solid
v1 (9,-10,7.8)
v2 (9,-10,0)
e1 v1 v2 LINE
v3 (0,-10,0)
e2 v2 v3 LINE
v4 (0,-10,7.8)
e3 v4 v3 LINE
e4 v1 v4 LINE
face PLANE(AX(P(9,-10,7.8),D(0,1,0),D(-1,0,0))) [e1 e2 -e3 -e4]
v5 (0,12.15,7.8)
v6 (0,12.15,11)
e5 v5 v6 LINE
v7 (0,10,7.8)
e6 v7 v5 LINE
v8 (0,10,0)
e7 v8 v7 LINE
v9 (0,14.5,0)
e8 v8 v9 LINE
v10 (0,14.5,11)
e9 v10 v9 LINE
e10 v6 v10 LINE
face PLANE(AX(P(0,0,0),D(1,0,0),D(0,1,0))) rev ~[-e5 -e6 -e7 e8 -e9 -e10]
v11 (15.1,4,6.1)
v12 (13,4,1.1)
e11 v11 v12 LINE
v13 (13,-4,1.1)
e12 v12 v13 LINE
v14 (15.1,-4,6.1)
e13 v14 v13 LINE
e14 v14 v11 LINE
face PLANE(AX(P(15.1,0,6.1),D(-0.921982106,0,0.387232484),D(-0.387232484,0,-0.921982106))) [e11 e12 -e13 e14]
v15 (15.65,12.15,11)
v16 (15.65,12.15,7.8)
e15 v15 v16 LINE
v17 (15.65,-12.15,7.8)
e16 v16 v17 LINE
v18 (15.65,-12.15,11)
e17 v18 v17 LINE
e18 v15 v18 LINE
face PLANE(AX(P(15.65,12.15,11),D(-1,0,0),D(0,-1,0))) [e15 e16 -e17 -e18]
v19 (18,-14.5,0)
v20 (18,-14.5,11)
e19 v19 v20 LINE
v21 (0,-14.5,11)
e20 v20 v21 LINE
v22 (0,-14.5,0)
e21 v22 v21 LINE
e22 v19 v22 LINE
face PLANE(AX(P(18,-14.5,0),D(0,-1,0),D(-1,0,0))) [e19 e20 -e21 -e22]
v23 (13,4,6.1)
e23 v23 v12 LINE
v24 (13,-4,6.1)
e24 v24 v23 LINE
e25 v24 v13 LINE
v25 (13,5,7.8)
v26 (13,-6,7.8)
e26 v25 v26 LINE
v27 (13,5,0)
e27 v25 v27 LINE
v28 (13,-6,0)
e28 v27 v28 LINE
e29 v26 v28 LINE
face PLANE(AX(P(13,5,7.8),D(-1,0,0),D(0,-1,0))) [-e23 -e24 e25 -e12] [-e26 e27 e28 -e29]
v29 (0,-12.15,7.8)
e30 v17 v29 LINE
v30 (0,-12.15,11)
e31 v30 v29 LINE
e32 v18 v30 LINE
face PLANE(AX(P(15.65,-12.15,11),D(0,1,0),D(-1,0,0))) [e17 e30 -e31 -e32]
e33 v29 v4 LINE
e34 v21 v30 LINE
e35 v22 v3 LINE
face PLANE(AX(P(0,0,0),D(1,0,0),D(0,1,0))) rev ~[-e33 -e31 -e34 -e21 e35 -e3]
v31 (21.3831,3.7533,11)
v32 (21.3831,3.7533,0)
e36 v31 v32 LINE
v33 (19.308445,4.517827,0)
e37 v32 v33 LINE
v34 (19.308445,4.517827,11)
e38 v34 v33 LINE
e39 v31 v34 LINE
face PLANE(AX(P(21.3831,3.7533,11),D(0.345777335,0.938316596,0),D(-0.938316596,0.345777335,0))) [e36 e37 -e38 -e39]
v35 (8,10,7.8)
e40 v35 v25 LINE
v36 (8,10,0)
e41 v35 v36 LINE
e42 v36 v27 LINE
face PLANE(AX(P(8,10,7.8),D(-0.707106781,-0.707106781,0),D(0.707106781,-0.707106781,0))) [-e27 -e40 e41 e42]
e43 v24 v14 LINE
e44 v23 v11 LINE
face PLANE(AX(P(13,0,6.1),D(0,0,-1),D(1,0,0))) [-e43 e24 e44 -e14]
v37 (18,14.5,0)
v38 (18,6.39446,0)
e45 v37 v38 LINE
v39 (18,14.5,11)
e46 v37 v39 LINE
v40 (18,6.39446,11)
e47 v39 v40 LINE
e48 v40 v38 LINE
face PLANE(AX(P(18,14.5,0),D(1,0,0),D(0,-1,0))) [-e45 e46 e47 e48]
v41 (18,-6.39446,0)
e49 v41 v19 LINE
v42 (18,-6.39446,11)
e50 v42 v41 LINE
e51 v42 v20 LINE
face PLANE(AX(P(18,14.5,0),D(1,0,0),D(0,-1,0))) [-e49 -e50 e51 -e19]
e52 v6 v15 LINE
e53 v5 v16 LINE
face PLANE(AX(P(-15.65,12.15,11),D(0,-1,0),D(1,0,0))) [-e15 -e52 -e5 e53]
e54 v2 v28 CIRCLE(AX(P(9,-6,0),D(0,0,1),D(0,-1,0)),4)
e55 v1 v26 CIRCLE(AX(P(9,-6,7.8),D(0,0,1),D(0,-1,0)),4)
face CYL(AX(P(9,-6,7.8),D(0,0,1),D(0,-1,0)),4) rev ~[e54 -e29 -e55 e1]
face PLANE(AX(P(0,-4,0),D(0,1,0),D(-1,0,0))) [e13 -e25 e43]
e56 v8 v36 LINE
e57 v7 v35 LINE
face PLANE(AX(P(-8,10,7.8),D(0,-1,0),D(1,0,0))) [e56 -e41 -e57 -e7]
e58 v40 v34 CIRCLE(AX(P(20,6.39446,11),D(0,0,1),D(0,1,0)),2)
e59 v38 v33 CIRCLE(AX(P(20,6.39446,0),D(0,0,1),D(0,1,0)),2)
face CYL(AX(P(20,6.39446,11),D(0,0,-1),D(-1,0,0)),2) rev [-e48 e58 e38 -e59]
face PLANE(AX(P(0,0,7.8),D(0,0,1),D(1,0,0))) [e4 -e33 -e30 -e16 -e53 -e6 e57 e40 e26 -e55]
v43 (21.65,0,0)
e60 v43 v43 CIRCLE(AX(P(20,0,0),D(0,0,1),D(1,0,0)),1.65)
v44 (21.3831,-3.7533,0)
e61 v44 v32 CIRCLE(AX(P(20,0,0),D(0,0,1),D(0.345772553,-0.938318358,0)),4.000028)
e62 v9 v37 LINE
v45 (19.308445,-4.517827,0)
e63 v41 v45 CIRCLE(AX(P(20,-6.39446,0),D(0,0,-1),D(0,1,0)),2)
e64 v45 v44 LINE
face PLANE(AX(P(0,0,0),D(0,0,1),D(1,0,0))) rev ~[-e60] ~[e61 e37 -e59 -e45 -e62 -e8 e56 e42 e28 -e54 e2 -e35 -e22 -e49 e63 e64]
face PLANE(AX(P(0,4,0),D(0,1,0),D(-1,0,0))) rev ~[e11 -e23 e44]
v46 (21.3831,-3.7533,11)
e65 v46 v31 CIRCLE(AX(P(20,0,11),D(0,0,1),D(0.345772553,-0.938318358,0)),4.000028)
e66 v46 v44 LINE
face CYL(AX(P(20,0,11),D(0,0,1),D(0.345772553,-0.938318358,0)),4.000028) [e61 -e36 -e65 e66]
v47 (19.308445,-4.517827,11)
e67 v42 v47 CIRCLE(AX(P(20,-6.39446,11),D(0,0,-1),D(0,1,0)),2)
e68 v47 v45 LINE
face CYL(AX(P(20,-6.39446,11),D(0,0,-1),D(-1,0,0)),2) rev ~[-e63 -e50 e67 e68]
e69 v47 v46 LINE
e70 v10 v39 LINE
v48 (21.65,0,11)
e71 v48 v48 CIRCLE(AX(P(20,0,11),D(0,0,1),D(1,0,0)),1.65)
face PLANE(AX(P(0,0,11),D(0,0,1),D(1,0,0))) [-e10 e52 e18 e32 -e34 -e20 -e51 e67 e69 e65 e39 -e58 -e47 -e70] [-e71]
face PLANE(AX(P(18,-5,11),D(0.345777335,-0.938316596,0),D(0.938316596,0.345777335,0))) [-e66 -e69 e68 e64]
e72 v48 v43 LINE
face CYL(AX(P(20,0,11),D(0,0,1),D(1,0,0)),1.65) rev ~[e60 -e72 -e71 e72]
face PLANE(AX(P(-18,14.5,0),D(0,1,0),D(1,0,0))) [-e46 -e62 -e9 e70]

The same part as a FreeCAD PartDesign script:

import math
import FreeCAD as App
import Part
import Sketcher

V = App.Vector


def edges_at(feature, points):
    """Names of the edges that pass closest to the given points."""
    edges = feature.Shape.Edges
    near = lambda p: min(range(len(edges)), key=lambda i: edges[i].distToShape(Part.Vertex(*p))[0])
    return sorted({f"Edge{near(p) + 1}" for p in points})


def add_polygon(sketch, points):
    """Adds a closed chain of lines whose ends are joined by coincident constraints."""
    first, n = sketch.GeometryCount, len(points)
    for a, b in zip(points, points[1:] + points[:1]):
        sketch.addGeometry(Part.LineSegment(App.Vector(*a, 0), App.Vector(*b, 0)), False)
    for i in range(n):
        sketch.addConstraint(Sketcher.Constraint("Coincident", first + i, 2, first + (i + 1) % n, 1))

doc = App.newDocument("Part")
body = doc.addObject("PartDesign::Body", "Body")

# Sketch on XY plane
sketch1 = doc.addObject("Sketcher::SketchObject", "Sketch")
body.addObject(sketch1)
sketch1.AttachmentSupport = (doc.XY_Plane, [""])
sketch1.MapMode = "FlatFace"
add_polygon(sketch1, [(18, 14), (-18, 14), (-18, -14), (18, -14)])  # lines 0-3
sketch1.addConstraint(Sketcher.Constraint("Horizontal", 0))
sketch1.addConstraint(Sketcher.Constraint("Vertical", 1))
sketch1.addConstraint(Sketcher.Constraint("Horizontal", 2))
sketch1.addConstraint(Sketcher.Constraint("Vertical", 3))
sketch1.addConstraint(Sketcher.Constraint("Symmetric", 0, 2, 2, 2, -1, 1))
sketch1.addConstraint(Sketcher.Constraint("DistanceX", 0, 2, 0, 1, 36.0))
sketch1.addConstraint(Sketcher.Constraint("DistanceY", 1, 2, 1, 1, 29.0))
pad1 = doc.addObject("PartDesign::Pad", "Pad")
body.addObject(pad1)
pad1.Profile = sketch1
pad1.Length = 11

# Sketch on XY plane
sketch2 = doc.addObject("Sketcher::SketchObject", "Sketch001")
body.addObject(sketch2)
sketch2.AttachmentSupport = (doc.XY_Plane, [""])
sketch2.MapMode = "FlatFace"
sketch2.AttachmentOffset = App.Placement(V(0, 0, 11), App.Rotation())
add_polygon(sketch2, [(16, 12), (-16, 12), (-16, -12), (16, -12)])  # lines 0-3
sketch2.addConstraint(Sketcher.Constraint("Horizontal", 0))
sketch2.addConstraint(Sketcher.Constraint("Vertical", 1))
sketch2.addConstraint(Sketcher.Constraint("Horizontal", 2))
sketch2.addConstraint(Sketcher.Constraint("Vertical", 3))
sketch2.addConstraint(Sketcher.Constraint("Symmetric", 0, 2, 2, 2, -1, 1))
sketch2.addConstraint(Sketcher.Constraint("DistanceX", 0, 2, 0, 1, 31.3))
sketch2.addConstraint(Sketcher.Constraint("DistanceY", 1, 2, 1, 1, 24.3))
pocket1 = doc.addObject("PartDesign::Pocket", "Pocket")
body.addObject(pocket1)
pocket1.Profile = sketch2
pocket1.Length = 3.2

# Sketch on XY plane
sketch3 = doc.addObject("Sketcher::SketchObject", "Sketch002")
body.addObject(sketch3)
sketch3.AttachmentSupport = (doc.XY_Plane, [""])
sketch3.MapMode = "FlatFace"
sketch3.AttachmentOffset = App.Placement(V(0, 0, 7.8), App.Rotation())
sketch3.addGeometry(Part.LineSegment(V(8, 10, 0), V(-8, 10, 0)), False)
sketch3.addGeometry(Part.LineSegment(V(-8, 10, 0), V(-13, 5, 0)), False)
sketch3.addGeometry(Part.LineSegment(V(-13, 5, 0), V(-13, -6, 0)), False)
sketch3.addGeometry(Part.ArcOfCircle(Part.Circle(V(-9, -6, 0), V(0, 0, 1), 4), math.radians(180), math.radians(270)), False)
sketch3.addGeometry(Part.LineSegment(V(-9, -10, 0), V(9, -10, 0)), False)
sketch3.addGeometry(Part.ArcOfCircle(Part.Circle(V(9, -6, 0), V(0, 0, 1), 4), math.radians(-90), math.radians(0)), False)
sketch3.addGeometry(Part.LineSegment(V(13, -6, 0), V(13, 5, 0)), False)
sketch3.addGeometry(Part.LineSegment(V(13, 5, 0), V(8, 10, 0)), False)
sketch3.addConstraint(Sketcher.Constraint("Coincident", 0, 2, 1, 1))
sketch3.addConstraint(Sketcher.Constraint("Coincident", 1, 2, 2, 1))
sketch3.addConstraint(Sketcher.Constraint("Tangent", 2, 2, 3, 1))
sketch3.addConstraint(Sketcher.Constraint("Tangent", 3, 2, 4, 1))
sketch3.addConstraint(Sketcher.Constraint("Tangent", 4, 2, 5, 1))
sketch3.addConstraint(Sketcher.Constraint("Tangent", 5, 2, 6, 1))
sketch3.addConstraint(Sketcher.Constraint("Coincident", 6, 2, 7, 1))
sketch3.addConstraint(Sketcher.Constraint("Coincident", 7, 2, 0, 1))
sketch3.addConstraint(Sketcher.Constraint("Horizontal", 0))
sketch3.addConstraint(Sketcher.Constraint("Vertical", 2))
sketch3.addConstraint(Sketcher.Constraint("Horizontal", 4))
sketch3.addConstraint(Sketcher.Constraint("Vertical", 6))
sketch3.addConstraint(Sketcher.Constraint("Equal", 3, 5))
sketch3.addConstraint(Sketcher.Constraint("Symmetric", 1, 2, 6, 2, -2))
sketch3.addConstraint(Sketcher.Constraint("Perpendicular", 1, 7))
sketch3.addConstraint(Sketcher.Constraint("Equal", 1, 7))
sketch3.addConstraint(Sketcher.Constraint("Radius", 3, 4.0))
sketch3.addConstraint(Sketcher.Constraint("DistanceY", -1, 1, 1, 2, 5.0))
sketch3.addConstraint(Sketcher.Constraint("DistanceX", 1, 2, 0, 2, 5.0))
sketch3.addConstraint(Sketcher.Constraint("DistanceY", 3, 2, 0, 2, 20.0))
sketch3.addConstraint(Sketcher.Constraint("DistanceX", 2, 2, 5, 2, 26.0))
pocket2 = doc.addObject("PartDesign::Pocket", "Pocket001")
body.addObject(pocket2)
pocket2.Profile = sketch3
pocket2.Type = "ThroughAll"

# Sketch on XZ plane
sketch4 = doc.addObject("Sketcher::SketchObject", "Sketch003")
body.addObject(sketch4)
sketch4.AttachmentSupport = (doc.XZ_Plane, [""])
sketch4.MapMode = "FlatFace"
add_polygon(sketch4, [(-15.1, 6.1), (-13, 6.1), (-13, 1.1)])  # lines 0-2
add_polygon(sketch4, [(13, 1.1), (13, 6.1), (15.1, 6.1)])  # lines 3-5
sketch4.addConstraint(Sketcher.Constraint("Horizontal", 0))
sketch4.addConstraint(Sketcher.Constraint("Vertical", 1))
sketch4.addConstraint(Sketcher.Constraint("Vertical", 3))
sketch4.addConstraint(Sketcher.Constraint("Horizontal", 4))
sketch4.addConstraint(Sketcher.Constraint("Symmetric", 0, 2, 3, 2, -2))
sketch4.addConstraint(Sketcher.Constraint("Horizontal", 1, 2, 5, 2))
sketch4.addConstraint(Sketcher.Constraint("Equal", 0, 4))
sketch4.addConstraint(Sketcher.Constraint("DistanceY", 1, 2, 1, 1, 5.0))
sketch4.addConstraint(Sketcher.Constraint("DistanceX", 0, 1, 0, 2, 2.1))
sketch4.addConstraint(Sketcher.Constraint("DistanceX", 0, 2, -1, 1, 13.0))
sketch4.addConstraint(Sketcher.Constraint("DistanceY", -1, 1, 0, 2, 6.1))
pocket3 = doc.addObject("PartDesign::Pocket", "Pocket002")
body.addObject(pocket3)
pocket3.Profile = sketch4
pocket3.Length = 8
pocket3.Midplane = True

# Sketch on XY plane
sketch5 = doc.addObject("Sketcher::SketchObject", "Sketch004")
body.addObject(sketch5)
sketch5.AttachmentSupport = (doc.XY_Plane, [""])
sketch5.MapMode = "FlatFace"
sketch5.AttachmentOffset = App.Placement(V(0, 0, 11), App.Rotation())
sketch5.addGeometry(Part.LineSegment(V(18, -5, 0), V(21.4, -3.8, 0)), False)
sketch5.addGeometry(Part.ArcOfCircle(Part.Circle(V(20, 0, 0), V(0, 0, 1), 4), math.radians(-70), math.radians(70)), False)
sketch5.addGeometry(Part.LineSegment(V(21.4, 3.8, 0), V(18, 5, 0)), False)
sketch5.addGeometry(Part.LineSegment(V(18, 5, 0), V(18, -5, 0)), False)
sketch5.addGeometry(Part.Circle(V(20, 0, 0), V(0, 0, 1), 1.6), False)
sketch5.addGeometry(Part.LineSegment(V(-18, 5, 0), V(-21.4, 3.8, 0)), False)
sketch5.addGeometry(Part.ArcOfCircle(Part.Circle(V(-20, 0, 0), V(0, 0, 1), 4), math.radians(110), math.radians(250)), False)
sketch5.addGeometry(Part.LineSegment(V(-21.4, -3.8, 0), V(-18, -5, 0)), False)
sketch5.addGeometry(Part.LineSegment(V(-18, -5, 0), V(-18, 5, 0)), False)
sketch5.addGeometry(Part.Circle(V(-20, 0, 0), V(0, 0, 1), 1.6), False)
sketch5.addConstraint(Sketcher.Constraint("Tangent", 0, 2, 1, 1))
sketch5.addConstraint(Sketcher.Constraint("Tangent", 1, 2, 2, 1))
sketch5.addConstraint(Sketcher.Constraint("Coincident", 2, 2, 3, 1))
sketch5.addConstraint(Sketcher.Constraint("Coincident", 3, 2, 0, 1))
sketch5.addConstraint(Sketcher.Constraint("Tangent", 5, 2, 6, 1))
sketch5.addConstraint(Sketcher.Constraint("Tangent", 6, 2, 7, 1))
sketch5.addConstraint(Sketcher.Constraint("Coincident", 7, 2, 8, 1))
sketch5.addConstraint(Sketcher.Constraint("Coincident", 8, 2, 5, 1))
sketch5.addConstraint(Sketcher.Constraint("Vertical", 3))
sketch5.addConstraint(Sketcher.Constraint("Vertical", 8))
sketch5.addConstraint(Sketcher.Constraint("Coincident", 4, 3, 1, 3))
sketch5.addConstraint(Sketcher.Constraint("Coincident", 9, 3, 6, 3))
sketch5.addConstraint(Sketcher.Constraint("Equal", 1, 6))
sketch5.addConstraint(Sketcher.Constraint("Equal", 4, 9))
sketch5.addConstraint(Sketcher.Constraint("Symmetric", 1, 3, 6, 3, -1, 1))
sketch5.addConstraint(Sketcher.Constraint("Symmetric", 2, 2, 7, 2, -1, 1))
sketch5.addConstraint(Sketcher.Constraint("Symmetric", 1, 2, 5, 2, -2))
sketch5.addConstraint(Sketcher.Constraint("Parallel", 0, 5))
sketch5.addConstraint(Sketcher.Constraint("Radius", 1, 4.0))
sketch5.addConstraint(Sketcher.Constraint("Diameter", 4, 3.3))
sketch5.addConstraint(Sketcher.Constraint("DistanceY", 3, 2, 3, 1, 10.0))
sketch5.addConstraint(Sketcher.Constraint("DistanceX", 6, 3, 1, 3, 40.0))
sketch5.addConstraint(Sketcher.Constraint("DistanceX", -1, 1, 2, 2, 18.0))
pad2 = doc.addObject("PartDesign::Pad", "Pad001")
body.addObject(pad2)
pad2.Profile = sketch5
pad2.Length = 11
pad2.Reversed = True
doc.recompute()

fillet = doc.addObject("PartDesign::Fillet", "Fillet")
body.addObject(fillet)
fillet.Base = (pad2, edges_at(pad2, [
    (18, -5, 5.5),
    (18, 5, 5.5),
    (-18, 5, 5.5),
    (-18, -5, 5.5),
]))
fillet.Radius = 2

# Sketch on YZ plane
sketch6 = doc.addObject("Sketcher::SketchObject", "Sketch005")
body.addObject(sketch6)
sketch6.AttachmentSupport = (doc.YZ_Plane, [""])
sketch6.MapMode = "FlatFace"
add_polygon(sketch6, [(-45, -28), (45, -28), (45, 28), (-45, 28)])  # lines 0-3
sketch6.addConstraint(Sketcher.Constraint("Horizontal", 0))
sketch6.addConstraint(Sketcher.Constraint("Vertical", 1))
sketch6.addConstraint(Sketcher.Constraint("Horizontal", 2))
sketch6.addConstraint(Sketcher.Constraint("Vertical", 3))
sketch6.addConstraint(Sketcher.Constraint("Symmetric", 0, 2, 2, 2, -1, 1))
sketch6.addConstraint(Sketcher.Constraint("DistanceX", 0, 1, 0, 2, 90.3022))
sketch6.addConstraint(Sketcher.Constraint("DistanceY", 1, 1, 1, 2, 56.4788))
pocket4 = doc.addObject("PartDesign::Pocket", "Pocket003")
body.addObject(pocket4)
pocket4.Profile = sketch6
pocket4.Type = "ThroughAll"

doc.recompute()
